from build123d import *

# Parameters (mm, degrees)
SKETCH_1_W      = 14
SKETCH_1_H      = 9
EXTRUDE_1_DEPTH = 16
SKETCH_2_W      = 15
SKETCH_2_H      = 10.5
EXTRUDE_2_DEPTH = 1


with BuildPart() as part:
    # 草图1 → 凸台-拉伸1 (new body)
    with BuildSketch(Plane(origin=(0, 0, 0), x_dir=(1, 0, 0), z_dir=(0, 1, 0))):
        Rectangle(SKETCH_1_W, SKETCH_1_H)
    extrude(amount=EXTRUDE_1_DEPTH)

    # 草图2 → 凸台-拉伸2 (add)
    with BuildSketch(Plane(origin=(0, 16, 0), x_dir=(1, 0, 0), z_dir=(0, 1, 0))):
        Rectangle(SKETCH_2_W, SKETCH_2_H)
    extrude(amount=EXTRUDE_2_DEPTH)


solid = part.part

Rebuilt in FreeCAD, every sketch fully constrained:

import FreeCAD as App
import Part
import Sketcher

V = App.Vector


def add_polygon(sketch, points):
    """Adds a closed chain of lines whose ends are joined by coincident constraints."""
    first, n = sketch.GeometryCount, len(points)
    for a, b in zip(points, points[1:] + points[:1]):
        sketch.addGeometry(Part.LineSegment(App.Vector(*a, 0), App.Vector(*b, 0)), False)
    for i in range(n):
        sketch.addConstraint(Sketcher.Constraint("Coincident", first + i, 2, first + (i + 1) % n, 1))

doc = App.newDocument("Part")
body = doc.addObject("PartDesign::Body", "Body")

sketch1 = body.newObject("Sketcher::SketchObject", "Sketch")
sketch1.AttachmentSupport = (doc.getObject("XZ_Plane"), [""])
sketch1.MapMode = "FlatFace"
add_polygon(sketch1, [(-7, -4), (-7, 4), (7, 4), (7, -4)])
sketch1.addConstraint([
    Sketcher.Constraint("Vertical", 0),
    Sketcher.Constraint("Horizontal", 1),
    Sketcher.Constraint("Vertical", 2),
    Sketcher.Constraint("Horizontal", 3),
    Sketcher.Constraint("Symmetric", 0, 2, 2, 2, -1, 1),
    Sketcher.Constraint("DistanceX", 1, 1, 1, 2, 14.0),
    Sketcher.Constraint("DistanceY", 0, 1, 0, 2, 9.0),
])
pad1 = body.newObject("PartDesign::Pad", "Pad")
pad1.Profile = sketch1
pad1.Length = 16
pad1.Reversed = True

sketch2 = body.newObject("Sketcher::SketchObject", "Sketch001")
sketch2.AttachmentSupport = (doc.getObject("XZ_Plane"), [""])
sketch2.MapMode = "FlatFace"
sketch2.AttachmentOffset = App.Placement(V(0, 0, -16), App.Rotation())
add_polygon(sketch2, [(-8, -5), (-8, 5), (8, 5), (8, -5)])
sketch2.addConstraint([
    Sketcher.Constraint("Vertical", 0),
    Sketcher.Constraint("Horizontal", 1),
    Sketcher.Constraint("Vertical", 2),
    Sketcher.Constraint("Horizontal", 3),
    Sketcher.Constraint("Symmetric", 0, 2, 2, 2, -1, 1),
    Sketcher.Constraint("DistanceX", 1, 1, 1, 2, 15.0),
    Sketcher.Constraint("DistanceY", 0, 1, 0, 2, 10.5),
])
pad2 = body.newObject("PartDesign::Pad", "Pad001")
pad2.Profile = sketch2
pad2.Length = 1
pad2.Reversed = True

doc.recompute()
